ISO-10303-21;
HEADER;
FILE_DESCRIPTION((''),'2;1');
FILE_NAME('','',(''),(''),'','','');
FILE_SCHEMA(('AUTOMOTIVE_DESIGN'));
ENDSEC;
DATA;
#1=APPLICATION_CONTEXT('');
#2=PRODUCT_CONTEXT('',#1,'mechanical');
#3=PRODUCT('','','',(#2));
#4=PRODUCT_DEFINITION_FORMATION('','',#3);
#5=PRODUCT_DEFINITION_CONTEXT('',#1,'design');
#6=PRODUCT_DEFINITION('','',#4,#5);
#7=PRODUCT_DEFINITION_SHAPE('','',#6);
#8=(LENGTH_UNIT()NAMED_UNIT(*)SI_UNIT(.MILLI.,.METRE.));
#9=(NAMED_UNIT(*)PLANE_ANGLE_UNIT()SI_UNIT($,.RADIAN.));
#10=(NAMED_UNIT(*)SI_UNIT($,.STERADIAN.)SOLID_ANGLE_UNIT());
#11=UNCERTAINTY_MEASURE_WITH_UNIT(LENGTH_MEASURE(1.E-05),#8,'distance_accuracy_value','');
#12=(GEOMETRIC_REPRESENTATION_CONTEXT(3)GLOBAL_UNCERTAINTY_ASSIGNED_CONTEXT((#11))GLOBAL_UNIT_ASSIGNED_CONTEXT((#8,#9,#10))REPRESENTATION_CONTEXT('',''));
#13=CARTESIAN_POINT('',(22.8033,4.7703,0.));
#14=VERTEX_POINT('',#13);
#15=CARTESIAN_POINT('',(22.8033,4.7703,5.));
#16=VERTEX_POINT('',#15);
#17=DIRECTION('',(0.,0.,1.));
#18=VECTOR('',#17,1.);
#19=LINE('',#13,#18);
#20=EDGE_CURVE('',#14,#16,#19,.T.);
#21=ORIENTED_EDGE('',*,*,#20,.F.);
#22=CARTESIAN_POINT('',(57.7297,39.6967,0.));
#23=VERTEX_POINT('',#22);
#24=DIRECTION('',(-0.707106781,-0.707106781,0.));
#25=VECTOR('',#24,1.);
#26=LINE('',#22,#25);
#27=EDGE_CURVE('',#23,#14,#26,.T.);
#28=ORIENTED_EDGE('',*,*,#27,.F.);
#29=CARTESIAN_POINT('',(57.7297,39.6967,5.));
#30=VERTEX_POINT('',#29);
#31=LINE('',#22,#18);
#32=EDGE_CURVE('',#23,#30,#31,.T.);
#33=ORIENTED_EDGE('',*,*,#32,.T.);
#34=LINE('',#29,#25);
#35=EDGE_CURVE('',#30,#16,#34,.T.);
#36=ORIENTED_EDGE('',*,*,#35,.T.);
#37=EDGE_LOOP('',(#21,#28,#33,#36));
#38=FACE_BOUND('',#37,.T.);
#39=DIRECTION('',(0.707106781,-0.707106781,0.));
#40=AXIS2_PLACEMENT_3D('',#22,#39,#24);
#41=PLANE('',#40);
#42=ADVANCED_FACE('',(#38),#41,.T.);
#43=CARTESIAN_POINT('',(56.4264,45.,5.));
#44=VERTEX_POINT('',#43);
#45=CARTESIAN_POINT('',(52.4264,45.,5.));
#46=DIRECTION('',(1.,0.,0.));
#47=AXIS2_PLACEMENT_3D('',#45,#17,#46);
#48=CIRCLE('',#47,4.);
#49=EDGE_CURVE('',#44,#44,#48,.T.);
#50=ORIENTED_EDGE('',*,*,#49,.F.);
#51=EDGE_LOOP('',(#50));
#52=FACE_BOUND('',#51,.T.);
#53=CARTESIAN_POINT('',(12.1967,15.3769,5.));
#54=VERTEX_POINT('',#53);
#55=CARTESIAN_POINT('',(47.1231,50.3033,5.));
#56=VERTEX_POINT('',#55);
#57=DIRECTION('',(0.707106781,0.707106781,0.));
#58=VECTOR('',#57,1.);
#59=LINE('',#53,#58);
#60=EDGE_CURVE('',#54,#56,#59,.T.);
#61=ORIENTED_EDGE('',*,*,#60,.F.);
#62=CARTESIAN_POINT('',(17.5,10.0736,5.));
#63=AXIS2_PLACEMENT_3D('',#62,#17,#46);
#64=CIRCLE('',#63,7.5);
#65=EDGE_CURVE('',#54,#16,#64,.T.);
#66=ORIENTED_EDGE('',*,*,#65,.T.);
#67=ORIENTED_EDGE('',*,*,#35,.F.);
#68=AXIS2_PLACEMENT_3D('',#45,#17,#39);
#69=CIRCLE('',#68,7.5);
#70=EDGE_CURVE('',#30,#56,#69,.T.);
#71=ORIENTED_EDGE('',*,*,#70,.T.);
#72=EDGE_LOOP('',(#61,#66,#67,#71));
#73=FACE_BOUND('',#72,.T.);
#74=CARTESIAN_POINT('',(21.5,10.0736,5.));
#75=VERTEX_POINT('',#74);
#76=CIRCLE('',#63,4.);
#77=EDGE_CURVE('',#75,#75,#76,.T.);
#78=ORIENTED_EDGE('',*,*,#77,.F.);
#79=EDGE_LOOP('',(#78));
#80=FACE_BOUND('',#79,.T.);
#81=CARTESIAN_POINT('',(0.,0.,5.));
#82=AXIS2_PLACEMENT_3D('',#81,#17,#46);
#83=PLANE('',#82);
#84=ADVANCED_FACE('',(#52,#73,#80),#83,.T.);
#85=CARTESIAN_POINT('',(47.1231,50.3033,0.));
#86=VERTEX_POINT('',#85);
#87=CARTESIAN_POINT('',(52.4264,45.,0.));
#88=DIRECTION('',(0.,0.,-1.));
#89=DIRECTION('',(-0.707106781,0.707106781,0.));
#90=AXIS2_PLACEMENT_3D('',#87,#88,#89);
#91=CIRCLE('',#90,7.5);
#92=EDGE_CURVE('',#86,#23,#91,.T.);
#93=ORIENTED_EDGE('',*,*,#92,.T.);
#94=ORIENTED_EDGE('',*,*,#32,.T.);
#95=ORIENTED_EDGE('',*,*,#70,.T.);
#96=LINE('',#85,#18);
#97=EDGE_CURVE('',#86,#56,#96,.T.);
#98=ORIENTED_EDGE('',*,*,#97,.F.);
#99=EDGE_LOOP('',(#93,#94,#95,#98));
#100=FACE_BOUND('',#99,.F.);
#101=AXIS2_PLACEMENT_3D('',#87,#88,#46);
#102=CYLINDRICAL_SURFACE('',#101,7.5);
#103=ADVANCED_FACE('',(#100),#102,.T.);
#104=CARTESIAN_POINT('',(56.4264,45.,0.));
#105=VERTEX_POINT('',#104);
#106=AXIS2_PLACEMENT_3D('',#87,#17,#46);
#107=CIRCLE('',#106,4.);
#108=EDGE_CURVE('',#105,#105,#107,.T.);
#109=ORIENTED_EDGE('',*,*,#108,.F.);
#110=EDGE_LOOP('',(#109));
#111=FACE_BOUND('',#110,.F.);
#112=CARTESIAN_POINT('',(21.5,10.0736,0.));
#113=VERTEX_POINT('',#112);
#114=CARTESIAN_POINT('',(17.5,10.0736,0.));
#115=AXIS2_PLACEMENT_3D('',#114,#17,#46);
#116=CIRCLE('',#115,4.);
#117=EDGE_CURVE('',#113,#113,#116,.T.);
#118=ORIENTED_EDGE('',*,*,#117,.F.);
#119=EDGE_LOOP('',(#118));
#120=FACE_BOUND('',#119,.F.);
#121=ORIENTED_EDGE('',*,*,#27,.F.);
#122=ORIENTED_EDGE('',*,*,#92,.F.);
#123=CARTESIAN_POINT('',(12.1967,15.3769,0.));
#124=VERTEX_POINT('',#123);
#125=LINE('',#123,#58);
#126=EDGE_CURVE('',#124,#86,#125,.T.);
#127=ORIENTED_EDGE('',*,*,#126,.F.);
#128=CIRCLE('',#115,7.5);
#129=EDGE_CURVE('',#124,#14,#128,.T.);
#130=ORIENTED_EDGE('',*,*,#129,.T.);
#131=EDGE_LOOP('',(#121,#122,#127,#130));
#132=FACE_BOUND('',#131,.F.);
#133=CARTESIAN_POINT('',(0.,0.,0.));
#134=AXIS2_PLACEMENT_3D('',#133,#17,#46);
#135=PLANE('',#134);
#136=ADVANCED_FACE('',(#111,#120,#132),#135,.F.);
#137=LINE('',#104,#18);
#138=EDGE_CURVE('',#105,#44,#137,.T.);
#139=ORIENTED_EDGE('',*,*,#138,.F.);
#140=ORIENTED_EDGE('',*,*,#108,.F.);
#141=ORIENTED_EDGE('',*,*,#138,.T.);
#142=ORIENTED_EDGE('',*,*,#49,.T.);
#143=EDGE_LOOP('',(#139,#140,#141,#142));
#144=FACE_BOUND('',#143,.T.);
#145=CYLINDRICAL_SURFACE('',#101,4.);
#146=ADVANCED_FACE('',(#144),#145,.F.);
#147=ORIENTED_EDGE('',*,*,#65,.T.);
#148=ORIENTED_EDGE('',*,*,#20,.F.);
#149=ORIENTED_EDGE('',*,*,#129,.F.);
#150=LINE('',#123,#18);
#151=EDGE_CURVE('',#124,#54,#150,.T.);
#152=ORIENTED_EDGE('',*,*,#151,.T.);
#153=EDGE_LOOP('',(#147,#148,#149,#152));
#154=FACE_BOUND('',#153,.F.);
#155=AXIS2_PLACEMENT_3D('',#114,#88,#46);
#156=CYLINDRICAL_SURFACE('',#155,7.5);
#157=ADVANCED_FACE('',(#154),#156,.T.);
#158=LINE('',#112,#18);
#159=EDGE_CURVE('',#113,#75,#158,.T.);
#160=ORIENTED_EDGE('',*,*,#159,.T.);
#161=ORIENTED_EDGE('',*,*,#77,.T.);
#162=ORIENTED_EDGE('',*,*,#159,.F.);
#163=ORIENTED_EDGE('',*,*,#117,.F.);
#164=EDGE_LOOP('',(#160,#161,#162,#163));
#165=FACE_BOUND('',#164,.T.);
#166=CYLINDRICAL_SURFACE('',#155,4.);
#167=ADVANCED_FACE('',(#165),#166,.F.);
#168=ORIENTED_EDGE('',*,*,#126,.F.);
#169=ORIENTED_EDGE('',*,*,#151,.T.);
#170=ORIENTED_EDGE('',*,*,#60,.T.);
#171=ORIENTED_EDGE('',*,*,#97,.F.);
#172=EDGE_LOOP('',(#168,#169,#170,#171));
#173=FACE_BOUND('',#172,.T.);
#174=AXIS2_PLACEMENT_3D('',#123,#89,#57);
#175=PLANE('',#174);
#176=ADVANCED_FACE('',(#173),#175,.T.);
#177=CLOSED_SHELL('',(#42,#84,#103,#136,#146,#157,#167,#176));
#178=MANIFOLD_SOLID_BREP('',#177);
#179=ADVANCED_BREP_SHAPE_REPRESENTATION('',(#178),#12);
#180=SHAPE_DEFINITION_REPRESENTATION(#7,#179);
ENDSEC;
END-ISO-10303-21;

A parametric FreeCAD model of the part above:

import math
import FreeCAD as App
import Part
import Sketcher
from FreeCAD import Vector
Q = App.Units.Quantity

doc = App.newDocument("Part")
body = doc.addObject("PartDesign::Body", "Body")

# Sketch on XY plane
sketch1 = body.newObject("Sketcher::SketchObject", "Sketch")
sketch1.AttachmentSupport = (doc.getObject("XY_Plane"), [""])
sketch1.MapMode = "FlatFace"
sketch1.addGeometry([
    Part.ArcOfCircle(Part.Circle(Vector(17.5, 10.0736, 0), Vector(0, 0, 1), 7.5), math.radians(135), math.radians(315)),  # 0
    Part.LineSegment(Vector(22.8033, 4.7703, 0), Vector(57.7297, 39.6967, 0)),  # 1
    Part.ArcOfCircle(Part.Circle(Vector(52.4264, 45, 0), Vector(0, 0, 1), 7.5), math.radians(-45), math.radians(135)),  # 2
    Part.LineSegment(Vector(47.1231, 50.3033, 0), Vector(12.1967, 15.3769, 0)),  # 3
    Part.Circle(Vector(17.5, 10.0736, 0), Vector(0, 0, 1), 4),  # 4
    Part.Circle(Vector(52.4264, 45, 0), Vector(0, 0, 1), 4),  # 5
], False)
sketch1.addConstraint([
    Sketcher.Constraint("Tangent", 0, 2, 1, 1),
    Sketcher.Constraint("Tangent", 1, 2, 2, 1),
    Sketcher.Constraint("Tangent", 2, 2, 3, 1),
    Sketcher.Constraint("Tangent", 3, 2, 0, 1),
    Sketcher.Constraint("Coincident", 4, 3, 0, 3),
    Sketcher.Constraint("Coincident", 5, 3, 2, 3),
    Sketcher.Constraint("Equal", 0, 2),
    Sketcher.Constraint("Equal", 4, 5),
    Sketcher.Constraint("Diameter", 4, Q("8 mm")),
    Sketcher.Constraint("Radius", 0, Q("7.5 mm")),
    Sketcher.Constraint("Angle", 1, Q("45 deg")),
    Sketcher.Constraint("DistanceY", -1, 1, 2, 3, Q("45 mm")),
    Sketcher.Constraint("DistanceX", -1, 1, 0, 3, Q("17.5 mm")),
    Sketcher.Constraint("DistanceX", -1, 1, 2, 2, Q("47.123 mm")),
])
pad1 = body.newObject("PartDesign::Pad", "Pad")
pad1.Profile = sketch1
pad1.Length = 5

doc.recompute()
